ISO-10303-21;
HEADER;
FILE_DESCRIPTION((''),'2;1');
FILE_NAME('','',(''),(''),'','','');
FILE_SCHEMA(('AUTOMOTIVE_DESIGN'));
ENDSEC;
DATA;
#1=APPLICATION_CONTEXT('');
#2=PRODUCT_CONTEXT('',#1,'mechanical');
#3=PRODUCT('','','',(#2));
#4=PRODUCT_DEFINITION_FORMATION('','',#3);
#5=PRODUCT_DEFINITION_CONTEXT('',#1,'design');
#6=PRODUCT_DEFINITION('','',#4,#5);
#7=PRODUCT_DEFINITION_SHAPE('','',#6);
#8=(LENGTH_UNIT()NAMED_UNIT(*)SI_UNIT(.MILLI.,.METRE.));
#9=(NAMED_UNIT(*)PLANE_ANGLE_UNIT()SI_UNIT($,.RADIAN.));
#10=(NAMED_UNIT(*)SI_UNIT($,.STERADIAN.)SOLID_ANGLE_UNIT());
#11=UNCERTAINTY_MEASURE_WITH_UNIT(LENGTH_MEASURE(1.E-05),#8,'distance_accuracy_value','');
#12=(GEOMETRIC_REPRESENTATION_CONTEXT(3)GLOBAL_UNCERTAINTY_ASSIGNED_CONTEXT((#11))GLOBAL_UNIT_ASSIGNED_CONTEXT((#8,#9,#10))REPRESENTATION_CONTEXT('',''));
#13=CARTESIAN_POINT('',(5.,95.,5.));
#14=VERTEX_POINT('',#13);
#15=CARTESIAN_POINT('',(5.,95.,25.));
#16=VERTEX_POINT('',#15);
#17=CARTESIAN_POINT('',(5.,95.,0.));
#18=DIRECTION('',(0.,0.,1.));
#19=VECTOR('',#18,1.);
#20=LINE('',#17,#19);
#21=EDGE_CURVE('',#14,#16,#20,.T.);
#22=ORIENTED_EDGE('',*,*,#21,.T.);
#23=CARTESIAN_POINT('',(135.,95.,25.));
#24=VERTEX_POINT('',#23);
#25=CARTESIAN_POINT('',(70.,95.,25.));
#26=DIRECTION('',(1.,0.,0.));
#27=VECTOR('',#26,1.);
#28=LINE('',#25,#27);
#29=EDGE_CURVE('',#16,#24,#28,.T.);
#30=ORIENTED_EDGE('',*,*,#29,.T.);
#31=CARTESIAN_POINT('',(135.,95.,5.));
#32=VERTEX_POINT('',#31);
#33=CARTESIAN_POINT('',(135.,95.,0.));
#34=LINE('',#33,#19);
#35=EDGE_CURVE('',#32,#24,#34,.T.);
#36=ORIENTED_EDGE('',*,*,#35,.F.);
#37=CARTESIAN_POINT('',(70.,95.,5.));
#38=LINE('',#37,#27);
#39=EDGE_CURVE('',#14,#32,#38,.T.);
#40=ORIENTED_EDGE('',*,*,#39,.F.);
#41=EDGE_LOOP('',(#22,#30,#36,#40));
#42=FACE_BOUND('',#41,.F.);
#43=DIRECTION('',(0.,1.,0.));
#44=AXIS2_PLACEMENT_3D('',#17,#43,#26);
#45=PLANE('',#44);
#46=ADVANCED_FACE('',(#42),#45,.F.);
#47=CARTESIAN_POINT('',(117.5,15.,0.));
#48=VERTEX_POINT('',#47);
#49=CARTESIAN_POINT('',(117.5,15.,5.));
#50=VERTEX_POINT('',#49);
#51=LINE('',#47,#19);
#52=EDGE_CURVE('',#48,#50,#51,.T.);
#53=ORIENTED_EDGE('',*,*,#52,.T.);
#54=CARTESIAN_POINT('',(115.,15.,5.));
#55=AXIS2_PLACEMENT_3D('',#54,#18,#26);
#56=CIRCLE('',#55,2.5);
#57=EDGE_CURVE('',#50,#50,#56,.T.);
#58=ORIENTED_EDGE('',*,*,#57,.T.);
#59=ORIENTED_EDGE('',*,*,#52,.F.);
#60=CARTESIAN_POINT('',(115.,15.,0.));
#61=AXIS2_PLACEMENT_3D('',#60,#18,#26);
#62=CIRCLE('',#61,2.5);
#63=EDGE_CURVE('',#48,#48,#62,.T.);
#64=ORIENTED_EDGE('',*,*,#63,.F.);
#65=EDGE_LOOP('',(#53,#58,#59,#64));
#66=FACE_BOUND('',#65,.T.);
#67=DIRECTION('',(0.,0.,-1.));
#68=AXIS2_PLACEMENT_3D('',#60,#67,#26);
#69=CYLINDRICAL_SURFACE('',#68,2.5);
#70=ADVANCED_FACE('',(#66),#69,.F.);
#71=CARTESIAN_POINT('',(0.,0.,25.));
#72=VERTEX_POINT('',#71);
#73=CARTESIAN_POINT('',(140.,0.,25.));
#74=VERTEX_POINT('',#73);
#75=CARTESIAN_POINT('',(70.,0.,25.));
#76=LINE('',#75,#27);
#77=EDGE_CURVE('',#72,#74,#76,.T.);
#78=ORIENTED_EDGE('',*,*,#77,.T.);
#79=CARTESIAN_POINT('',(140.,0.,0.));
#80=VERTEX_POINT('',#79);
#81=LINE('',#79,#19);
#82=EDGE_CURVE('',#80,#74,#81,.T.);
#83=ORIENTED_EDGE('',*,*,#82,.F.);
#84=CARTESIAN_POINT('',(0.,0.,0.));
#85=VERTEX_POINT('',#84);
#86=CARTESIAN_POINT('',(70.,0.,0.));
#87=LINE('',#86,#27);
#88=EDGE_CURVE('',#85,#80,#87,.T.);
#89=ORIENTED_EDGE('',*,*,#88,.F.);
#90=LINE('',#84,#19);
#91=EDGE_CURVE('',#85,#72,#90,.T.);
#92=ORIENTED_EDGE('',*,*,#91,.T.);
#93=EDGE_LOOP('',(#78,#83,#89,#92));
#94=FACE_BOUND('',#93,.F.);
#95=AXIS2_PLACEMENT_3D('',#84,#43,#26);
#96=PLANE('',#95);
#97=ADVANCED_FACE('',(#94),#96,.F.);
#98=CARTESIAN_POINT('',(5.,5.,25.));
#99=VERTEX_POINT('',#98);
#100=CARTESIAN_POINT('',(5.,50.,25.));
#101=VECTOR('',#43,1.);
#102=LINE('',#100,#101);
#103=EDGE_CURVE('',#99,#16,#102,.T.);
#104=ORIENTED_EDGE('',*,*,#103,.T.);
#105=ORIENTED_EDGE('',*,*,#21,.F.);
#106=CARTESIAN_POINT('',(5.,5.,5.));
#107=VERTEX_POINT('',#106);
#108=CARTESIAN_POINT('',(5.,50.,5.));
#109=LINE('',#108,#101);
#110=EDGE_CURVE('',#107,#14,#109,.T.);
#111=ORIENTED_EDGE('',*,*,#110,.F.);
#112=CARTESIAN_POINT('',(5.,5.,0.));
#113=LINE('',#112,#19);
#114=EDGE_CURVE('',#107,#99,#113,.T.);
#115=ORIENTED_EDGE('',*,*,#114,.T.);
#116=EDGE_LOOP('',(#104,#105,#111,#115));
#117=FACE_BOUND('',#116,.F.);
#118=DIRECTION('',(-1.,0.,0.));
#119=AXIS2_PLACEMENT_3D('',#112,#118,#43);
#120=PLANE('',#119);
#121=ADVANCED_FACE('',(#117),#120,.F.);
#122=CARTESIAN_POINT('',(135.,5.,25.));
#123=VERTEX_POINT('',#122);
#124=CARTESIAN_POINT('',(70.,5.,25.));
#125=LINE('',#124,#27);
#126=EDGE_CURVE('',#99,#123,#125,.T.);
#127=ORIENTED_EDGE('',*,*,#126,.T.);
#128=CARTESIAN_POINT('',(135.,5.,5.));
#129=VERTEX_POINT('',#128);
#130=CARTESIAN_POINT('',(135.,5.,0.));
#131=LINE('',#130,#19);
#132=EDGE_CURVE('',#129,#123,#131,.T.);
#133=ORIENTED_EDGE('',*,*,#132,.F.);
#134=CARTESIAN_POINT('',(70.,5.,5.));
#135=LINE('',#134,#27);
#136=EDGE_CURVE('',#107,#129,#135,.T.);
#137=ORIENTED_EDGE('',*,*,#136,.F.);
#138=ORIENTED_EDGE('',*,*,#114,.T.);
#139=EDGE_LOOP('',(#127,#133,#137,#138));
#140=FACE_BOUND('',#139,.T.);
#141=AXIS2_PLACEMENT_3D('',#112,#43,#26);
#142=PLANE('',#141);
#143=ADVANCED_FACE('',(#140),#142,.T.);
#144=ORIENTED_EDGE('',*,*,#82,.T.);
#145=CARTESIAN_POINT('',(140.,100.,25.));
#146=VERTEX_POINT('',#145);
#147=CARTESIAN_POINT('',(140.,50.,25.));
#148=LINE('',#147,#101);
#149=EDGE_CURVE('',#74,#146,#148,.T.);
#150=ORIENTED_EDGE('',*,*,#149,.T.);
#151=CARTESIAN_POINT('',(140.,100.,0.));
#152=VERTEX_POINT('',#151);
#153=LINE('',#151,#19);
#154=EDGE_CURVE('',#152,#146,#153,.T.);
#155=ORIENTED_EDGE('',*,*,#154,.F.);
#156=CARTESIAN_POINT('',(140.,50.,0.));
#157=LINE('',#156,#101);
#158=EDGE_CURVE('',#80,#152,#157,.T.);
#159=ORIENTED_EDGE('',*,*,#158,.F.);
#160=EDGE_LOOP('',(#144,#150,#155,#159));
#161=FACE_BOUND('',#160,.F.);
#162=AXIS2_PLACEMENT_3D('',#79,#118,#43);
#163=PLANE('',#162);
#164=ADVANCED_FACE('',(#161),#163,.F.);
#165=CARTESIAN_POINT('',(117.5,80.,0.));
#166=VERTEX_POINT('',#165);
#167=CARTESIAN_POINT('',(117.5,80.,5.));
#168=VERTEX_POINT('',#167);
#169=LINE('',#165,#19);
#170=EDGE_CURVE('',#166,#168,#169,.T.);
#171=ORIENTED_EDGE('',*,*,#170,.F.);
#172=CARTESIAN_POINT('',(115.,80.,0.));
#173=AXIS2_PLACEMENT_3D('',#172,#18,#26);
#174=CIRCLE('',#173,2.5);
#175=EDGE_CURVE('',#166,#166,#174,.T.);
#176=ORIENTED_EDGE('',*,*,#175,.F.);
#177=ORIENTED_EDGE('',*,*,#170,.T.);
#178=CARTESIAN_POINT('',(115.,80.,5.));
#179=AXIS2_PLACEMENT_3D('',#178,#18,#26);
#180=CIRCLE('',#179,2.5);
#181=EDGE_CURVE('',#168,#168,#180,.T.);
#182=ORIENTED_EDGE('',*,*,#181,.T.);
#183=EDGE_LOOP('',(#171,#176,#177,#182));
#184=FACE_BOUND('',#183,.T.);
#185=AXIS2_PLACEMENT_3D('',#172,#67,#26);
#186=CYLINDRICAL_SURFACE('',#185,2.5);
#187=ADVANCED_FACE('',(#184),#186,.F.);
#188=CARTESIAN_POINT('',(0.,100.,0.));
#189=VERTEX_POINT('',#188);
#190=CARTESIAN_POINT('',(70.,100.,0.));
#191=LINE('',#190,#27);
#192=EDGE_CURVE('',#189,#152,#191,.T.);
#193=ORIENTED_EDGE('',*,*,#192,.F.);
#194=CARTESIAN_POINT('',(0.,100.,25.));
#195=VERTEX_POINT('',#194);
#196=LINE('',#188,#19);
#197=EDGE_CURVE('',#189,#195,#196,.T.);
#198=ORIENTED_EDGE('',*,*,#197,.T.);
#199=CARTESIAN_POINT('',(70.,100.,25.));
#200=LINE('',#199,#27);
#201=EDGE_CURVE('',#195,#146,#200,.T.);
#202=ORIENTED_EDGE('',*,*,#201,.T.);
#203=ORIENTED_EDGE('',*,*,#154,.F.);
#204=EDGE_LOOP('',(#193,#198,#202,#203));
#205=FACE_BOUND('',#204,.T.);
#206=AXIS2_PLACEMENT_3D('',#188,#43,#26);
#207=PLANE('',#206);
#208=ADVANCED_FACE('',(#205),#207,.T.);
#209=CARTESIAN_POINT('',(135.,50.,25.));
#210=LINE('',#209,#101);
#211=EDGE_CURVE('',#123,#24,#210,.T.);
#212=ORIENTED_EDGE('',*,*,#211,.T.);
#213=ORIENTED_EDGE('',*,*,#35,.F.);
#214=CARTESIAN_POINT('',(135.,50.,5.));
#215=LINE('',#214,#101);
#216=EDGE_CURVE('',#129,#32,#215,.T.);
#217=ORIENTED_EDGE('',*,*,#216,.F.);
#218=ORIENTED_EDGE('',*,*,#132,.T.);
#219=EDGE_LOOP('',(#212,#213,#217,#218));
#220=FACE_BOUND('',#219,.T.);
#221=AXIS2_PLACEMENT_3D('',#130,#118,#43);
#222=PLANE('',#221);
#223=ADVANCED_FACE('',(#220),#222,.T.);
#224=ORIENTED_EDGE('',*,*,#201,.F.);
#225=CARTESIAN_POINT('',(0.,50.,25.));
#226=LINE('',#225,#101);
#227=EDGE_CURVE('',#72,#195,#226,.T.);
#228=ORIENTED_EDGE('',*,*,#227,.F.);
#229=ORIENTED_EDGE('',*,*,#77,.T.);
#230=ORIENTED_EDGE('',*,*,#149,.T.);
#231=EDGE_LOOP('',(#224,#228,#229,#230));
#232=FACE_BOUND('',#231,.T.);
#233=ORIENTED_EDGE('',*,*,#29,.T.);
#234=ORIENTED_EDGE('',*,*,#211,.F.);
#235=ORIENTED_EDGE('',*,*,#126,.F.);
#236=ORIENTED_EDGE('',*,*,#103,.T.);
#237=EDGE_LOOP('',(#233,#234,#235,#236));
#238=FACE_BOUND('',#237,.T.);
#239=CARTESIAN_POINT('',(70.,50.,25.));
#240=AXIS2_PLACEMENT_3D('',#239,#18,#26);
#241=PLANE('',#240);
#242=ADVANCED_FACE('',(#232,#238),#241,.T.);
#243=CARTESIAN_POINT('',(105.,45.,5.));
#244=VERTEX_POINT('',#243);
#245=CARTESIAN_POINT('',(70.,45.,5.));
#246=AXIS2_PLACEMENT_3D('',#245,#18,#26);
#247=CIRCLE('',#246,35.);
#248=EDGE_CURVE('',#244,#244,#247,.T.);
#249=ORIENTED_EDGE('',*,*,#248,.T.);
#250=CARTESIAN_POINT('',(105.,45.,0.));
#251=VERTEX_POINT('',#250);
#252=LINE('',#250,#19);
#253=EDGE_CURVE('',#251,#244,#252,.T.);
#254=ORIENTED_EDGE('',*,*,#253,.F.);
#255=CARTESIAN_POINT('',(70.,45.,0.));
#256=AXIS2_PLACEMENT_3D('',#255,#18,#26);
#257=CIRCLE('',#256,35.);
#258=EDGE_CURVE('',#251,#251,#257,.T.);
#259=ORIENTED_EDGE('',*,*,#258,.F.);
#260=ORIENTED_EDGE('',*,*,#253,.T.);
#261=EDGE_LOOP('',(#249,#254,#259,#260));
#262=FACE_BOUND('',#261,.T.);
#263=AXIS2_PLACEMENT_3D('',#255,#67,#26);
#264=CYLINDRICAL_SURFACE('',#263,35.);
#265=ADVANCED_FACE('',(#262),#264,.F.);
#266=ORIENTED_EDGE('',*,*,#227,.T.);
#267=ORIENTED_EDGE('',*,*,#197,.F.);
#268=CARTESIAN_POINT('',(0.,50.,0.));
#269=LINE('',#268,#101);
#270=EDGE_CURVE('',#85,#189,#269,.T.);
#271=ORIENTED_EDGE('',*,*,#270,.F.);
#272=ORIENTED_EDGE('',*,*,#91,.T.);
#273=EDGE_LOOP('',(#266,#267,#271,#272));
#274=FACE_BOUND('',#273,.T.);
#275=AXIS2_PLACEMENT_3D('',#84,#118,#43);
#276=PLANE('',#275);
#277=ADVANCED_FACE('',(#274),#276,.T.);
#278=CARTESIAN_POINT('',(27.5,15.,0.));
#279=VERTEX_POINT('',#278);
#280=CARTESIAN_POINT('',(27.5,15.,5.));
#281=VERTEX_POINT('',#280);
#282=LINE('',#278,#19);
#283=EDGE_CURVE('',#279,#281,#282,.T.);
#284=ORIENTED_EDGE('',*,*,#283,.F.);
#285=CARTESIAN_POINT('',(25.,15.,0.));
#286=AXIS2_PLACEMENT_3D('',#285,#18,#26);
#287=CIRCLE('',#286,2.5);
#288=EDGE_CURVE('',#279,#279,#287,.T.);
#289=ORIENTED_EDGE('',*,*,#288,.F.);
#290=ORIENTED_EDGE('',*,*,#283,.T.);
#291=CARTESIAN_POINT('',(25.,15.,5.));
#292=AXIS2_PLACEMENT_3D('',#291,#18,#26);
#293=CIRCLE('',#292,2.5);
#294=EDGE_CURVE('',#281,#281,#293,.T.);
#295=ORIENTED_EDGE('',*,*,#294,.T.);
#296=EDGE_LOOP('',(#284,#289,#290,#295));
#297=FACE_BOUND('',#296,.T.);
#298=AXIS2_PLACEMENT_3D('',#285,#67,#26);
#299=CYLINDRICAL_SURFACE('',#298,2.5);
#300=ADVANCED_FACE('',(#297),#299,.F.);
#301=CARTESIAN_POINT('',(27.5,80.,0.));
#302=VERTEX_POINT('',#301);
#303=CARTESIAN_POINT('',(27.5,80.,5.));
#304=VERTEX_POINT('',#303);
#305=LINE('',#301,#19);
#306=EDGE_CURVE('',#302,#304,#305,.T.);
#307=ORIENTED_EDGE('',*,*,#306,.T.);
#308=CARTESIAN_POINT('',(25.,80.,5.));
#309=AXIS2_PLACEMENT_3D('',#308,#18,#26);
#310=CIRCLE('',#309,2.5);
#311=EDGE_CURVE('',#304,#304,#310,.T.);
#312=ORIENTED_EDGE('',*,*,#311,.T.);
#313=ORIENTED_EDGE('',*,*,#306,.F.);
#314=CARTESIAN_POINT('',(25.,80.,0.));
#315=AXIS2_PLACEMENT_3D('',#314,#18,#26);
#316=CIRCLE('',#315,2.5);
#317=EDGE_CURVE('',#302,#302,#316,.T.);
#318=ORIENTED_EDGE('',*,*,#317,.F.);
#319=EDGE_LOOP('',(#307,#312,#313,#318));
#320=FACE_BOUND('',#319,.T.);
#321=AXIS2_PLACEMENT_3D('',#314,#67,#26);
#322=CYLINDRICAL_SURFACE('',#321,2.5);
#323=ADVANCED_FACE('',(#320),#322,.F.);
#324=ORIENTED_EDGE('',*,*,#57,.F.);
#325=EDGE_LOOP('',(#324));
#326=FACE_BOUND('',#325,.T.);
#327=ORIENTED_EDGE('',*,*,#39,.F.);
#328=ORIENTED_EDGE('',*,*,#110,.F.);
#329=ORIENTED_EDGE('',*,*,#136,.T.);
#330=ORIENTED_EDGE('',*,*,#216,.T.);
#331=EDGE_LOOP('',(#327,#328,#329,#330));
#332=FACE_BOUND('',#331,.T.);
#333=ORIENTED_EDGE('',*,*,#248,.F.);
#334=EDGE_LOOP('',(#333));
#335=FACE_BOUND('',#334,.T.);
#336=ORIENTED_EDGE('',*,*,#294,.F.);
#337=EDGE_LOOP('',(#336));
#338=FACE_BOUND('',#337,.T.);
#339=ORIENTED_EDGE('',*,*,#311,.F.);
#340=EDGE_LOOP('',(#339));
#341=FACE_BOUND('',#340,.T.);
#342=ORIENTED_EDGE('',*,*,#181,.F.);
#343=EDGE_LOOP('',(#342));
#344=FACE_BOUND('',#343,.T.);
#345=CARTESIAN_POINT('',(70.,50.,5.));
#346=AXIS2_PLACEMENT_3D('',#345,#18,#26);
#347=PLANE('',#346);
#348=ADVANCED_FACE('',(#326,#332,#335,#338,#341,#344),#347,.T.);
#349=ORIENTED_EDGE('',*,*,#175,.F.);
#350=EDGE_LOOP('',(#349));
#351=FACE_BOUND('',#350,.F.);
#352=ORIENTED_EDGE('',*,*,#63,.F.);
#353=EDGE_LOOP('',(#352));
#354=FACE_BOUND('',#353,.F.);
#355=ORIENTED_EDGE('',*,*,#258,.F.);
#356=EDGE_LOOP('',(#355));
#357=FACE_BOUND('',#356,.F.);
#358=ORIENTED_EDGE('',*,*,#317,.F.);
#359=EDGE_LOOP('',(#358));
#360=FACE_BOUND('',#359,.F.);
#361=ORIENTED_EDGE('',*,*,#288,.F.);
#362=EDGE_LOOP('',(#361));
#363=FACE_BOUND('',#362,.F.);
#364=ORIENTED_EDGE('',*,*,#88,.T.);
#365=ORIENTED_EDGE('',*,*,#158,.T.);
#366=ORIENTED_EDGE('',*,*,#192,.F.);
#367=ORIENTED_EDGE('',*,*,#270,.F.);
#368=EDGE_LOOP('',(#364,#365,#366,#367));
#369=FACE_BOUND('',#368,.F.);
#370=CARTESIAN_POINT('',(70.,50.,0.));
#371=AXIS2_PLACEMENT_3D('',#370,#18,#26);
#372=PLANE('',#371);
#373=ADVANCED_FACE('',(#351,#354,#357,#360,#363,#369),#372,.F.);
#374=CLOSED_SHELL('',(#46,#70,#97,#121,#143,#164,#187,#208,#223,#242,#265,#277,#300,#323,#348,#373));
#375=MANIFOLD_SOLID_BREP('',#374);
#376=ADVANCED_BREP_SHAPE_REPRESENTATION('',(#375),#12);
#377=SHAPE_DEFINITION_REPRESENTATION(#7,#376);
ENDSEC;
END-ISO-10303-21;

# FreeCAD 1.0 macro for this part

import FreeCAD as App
import Part
import Sketcher

V = App.Vector

doc = App.newDocument("Part")
body = doc.addObject("PartDesign::Body", "Body")

# Sketch on XY plane
sketch1 = body.newObject("Sketcher::SketchObject", "Sketch")
sketch1.AttachmentSupport = (doc.getObject("XY_Plane"), [""])
sketch1.MapMode = "FlatFace"
sketch1.addGeometry(Part.LineSegment(V(0, 100, 0), V(0, 0, 0)), False)
sketch1.addGeometry(Part.LineSegment(V(0, 0, 0), V(140, 0, 0)), False)
sketch1.addGeometry(Part.LineSegment(V(140, 0, 0), V(140, 100, 0)), False)
sketch1.addGeometry(Part.LineSegment(V(140, 100, 0), V(0, 100, 0)), False)
sketch1.addGeometry(Part.LineSegment(V(135, 5, 0), V(5, 5, 0)), False)
sketch1.addGeometry(Part.LineSegment(V(5, 5, 0), V(5, 95, 0)), False)
sketch1.addGeometry(Part.LineSegment(V(5, 95, 0), V(135, 95, 0)), False)
sketch1.addGeometry(Part.LineSegment(V(135, 95, 0), V(135, 5, 0)), False)
sketch1.addConstraint(Sketcher.Constraint("Coincident", 0, 2, 1, 1))
sketch1.addConstraint(Sketcher.Constraint("Coincident", 1, 2, 2, 1))
sketch1.addConstraint(Sketcher.Constraint("Coincident", 2, 2, 3, 1))
sketch1.addConstraint(Sketcher.Constraint("Coincident", 3, 2, 0, 1))
sketch1.addConstraint(Sketcher.Constraint("Coincident", 4, 2, 5, 1))
sketch1.addConstraint(Sketcher.Constraint("Coincident", 5, 2, 6, 1))
sketch1.addConstraint(Sketcher.Constraint("Coincident", 6, 2, 7, 1))
sketch1.addConstraint(Sketcher.Constraint("Coincident", 7, 2, 4, 1))
sketch1.addConstraint(Sketcher.Constraint("Vertical", 0))
sketch1.addConstraint(Sketcher.Constraint("Horizontal", 1))
sketch1.addConstraint(Sketcher.Constraint("Vertical", 2))
sketch1.addConstraint(Sketcher.Constraint("Horizontal", 3))
sketch1.addConstraint(Sketcher.Constraint("Horizontal", 4))
sketch1.addConstraint(Sketcher.Constraint("Vertical", 5))
sketch1.addConstraint(Sketcher.Constraint("Horizontal", 6))
sketch1.addConstraint(Sketcher.Constraint("Vertical", 7))
sketch1.addConstraint(Sketcher.Constraint("Coincident", 0, 2, -1, 1))
sketch1.addConstraint(Sketcher.Constraint("DistanceX", 1, 1, 1, 2, 140.0))
sketch1.addConstraint(Sketcher.Constraint("DistanceX", 4, 2, 4, 1, 130.0))
sketch1.addConstraint(Sketcher.Constraint("DistanceY", 0, 2, 0, 1, 100.0))
sketch1.addConstraint(Sketcher.Constraint("DistanceY", 5, 1, 5, 2, 90.0))
sketch1.addConstraint(Sketcher.Constraint("DistanceX", -1, 1, 4, 2, 5.0))
sketch1.addConstraint(Sketcher.Constraint("DistanceY", -1, 1, 4, 2, 5.0))
pad1 = body.newObject("PartDesign::Pad", "Pad")
pad1.Profile = sketch1
pad1.Length = 25

# Sketch on XY plane
sketch2 = body.newObject("Sketcher::SketchObject", "Sketch001")
sketch2.AttachmentSupport = (doc.getObject("XY_Plane"), [""])
sketch2.MapMode = "FlatFace"
sketch2.addGeometry(Part.LineSegment(V(5, 95, 0), V(5, 5, 0)), False)
sketch2.addGeometry(Part.LineSegment(V(5, 5, 0), V(135, 5, 0)), False)
sketch2.addGeometry(Part.LineSegment(V(135, 5, 0), V(135, 95, 0)), False)
sketch2.addGeometry(Part.LineSegment(V(135, 95, 0), V(5, 95, 0)), False)
sketch2.addGeometry(Part.Circle(V(25, 15, 0), V(0, 0, 1), 2.5), False)
sketch2.addGeometry(Part.Circle(V(115, 15, 0), V(0, 0, 1), 2.5), False)
sketch2.addGeometry(Part.Circle(V(70, 45, 0), V(0, 0, 1), 35), False)
sketch2.addGeometry(Part.Circle(V(25, 80, 0), V(0, 0, 1), 2.5), False)
sketch2.addGeometry(Part.Circle(V(115, 80, 0), V(0, 0, 1), 2.5), False)
sketch2.addConstraint(Sketcher.Constraint("Coincident", 0, 2, 1, 1))
sketch2.addConstraint(Sketcher.Constraint("Coincident", 1, 2, 2, 1))
sketch2.addConstraint(Sketcher.Constraint("Coincident", 2, 2, 3, 1))
sketch2.addConstraint(Sketcher.Constraint("Coincident", 3, 2, 0, 1))
sketch2.addConstraint(Sketcher.Constraint("Vertical", 0))
sketch2.addConstraint(Sketcher.Constraint("Horizontal", 1))
sketch2.addConstraint(Sketcher.Constraint("Vertical", 2))
sketch2.addConstraint(Sketcher.Constraint("Horizontal", 3))
sketch2.addConstraint(Sketcher.Constraint("Equal", 4, 5))
sketch2.addConstraint(Sketcher.Constraint("Equal", 5, 7))
sketch2.addConstraint(Sketcher.Constraint("Equal", 7, 8))
sketch2.addConstraint(Sketcher.Constraint("Horizontal", 4, 3, 5, 3))
sketch2.addConstraint(Sketcher.Constraint("Horizontal", 7, 3, 8, 3))
sketch2.addConstraint(Sketcher.Constraint("Vertical", 4, 3, 7, 3))
sketch2.addConstraint(Sketcher.Constraint("Vertical", 5, 3, 8, 3))
sketch2.addConstraint(Sketcher.Constraint("Diameter", 4, 5.0))
sketch2.addConstraint(Sketcher.Constraint("Diameter", 6, 70.0))
sketch2.addConstraint(Sketcher.Constraint("DistanceX", 1, 1, 1, 2, 130.0))
sketch2.addConstraint(Sketcher.Constraint("DistanceY", 0, 2, 0, 1, 90.0))
sketch2.addConstraint(Sketcher.Constraint("DistanceX", -1, 1, 4, 3, 25.0))
sketch2.addConstraint(Sketcher.Constraint("DistanceY", -1, 1, 4, 3, 15.0))
sketch2.addConstraint(Sketcher.Constraint("DistanceX", -1, 1, 5, 3, 115.0))
sketch2.addConstraint(Sketcher.Constraint("DistanceX", -1, 1, 6, 3, 70.0))
sketch2.addConstraint(Sketcher.Constraint("DistanceY", -1, 1, 6, 3, 45.0))
sketch2.addConstraint(Sketcher.Constraint("DistanceY", -1, 1, 7, 3, 80.0))
sketch2.addConstraint(Sketcher.Constraint("DistanceX", -1, 1, 0, 2, 5.0))
sketch2.addConstraint(Sketcher.Constraint("DistanceY", -1, 1, 0, 2, 5.0))
pad2 = body.newObject("PartDesign::Pad", "Pad001")
pad2.Profile = sketch2
pad2.Length = 5

doc.recompute()
